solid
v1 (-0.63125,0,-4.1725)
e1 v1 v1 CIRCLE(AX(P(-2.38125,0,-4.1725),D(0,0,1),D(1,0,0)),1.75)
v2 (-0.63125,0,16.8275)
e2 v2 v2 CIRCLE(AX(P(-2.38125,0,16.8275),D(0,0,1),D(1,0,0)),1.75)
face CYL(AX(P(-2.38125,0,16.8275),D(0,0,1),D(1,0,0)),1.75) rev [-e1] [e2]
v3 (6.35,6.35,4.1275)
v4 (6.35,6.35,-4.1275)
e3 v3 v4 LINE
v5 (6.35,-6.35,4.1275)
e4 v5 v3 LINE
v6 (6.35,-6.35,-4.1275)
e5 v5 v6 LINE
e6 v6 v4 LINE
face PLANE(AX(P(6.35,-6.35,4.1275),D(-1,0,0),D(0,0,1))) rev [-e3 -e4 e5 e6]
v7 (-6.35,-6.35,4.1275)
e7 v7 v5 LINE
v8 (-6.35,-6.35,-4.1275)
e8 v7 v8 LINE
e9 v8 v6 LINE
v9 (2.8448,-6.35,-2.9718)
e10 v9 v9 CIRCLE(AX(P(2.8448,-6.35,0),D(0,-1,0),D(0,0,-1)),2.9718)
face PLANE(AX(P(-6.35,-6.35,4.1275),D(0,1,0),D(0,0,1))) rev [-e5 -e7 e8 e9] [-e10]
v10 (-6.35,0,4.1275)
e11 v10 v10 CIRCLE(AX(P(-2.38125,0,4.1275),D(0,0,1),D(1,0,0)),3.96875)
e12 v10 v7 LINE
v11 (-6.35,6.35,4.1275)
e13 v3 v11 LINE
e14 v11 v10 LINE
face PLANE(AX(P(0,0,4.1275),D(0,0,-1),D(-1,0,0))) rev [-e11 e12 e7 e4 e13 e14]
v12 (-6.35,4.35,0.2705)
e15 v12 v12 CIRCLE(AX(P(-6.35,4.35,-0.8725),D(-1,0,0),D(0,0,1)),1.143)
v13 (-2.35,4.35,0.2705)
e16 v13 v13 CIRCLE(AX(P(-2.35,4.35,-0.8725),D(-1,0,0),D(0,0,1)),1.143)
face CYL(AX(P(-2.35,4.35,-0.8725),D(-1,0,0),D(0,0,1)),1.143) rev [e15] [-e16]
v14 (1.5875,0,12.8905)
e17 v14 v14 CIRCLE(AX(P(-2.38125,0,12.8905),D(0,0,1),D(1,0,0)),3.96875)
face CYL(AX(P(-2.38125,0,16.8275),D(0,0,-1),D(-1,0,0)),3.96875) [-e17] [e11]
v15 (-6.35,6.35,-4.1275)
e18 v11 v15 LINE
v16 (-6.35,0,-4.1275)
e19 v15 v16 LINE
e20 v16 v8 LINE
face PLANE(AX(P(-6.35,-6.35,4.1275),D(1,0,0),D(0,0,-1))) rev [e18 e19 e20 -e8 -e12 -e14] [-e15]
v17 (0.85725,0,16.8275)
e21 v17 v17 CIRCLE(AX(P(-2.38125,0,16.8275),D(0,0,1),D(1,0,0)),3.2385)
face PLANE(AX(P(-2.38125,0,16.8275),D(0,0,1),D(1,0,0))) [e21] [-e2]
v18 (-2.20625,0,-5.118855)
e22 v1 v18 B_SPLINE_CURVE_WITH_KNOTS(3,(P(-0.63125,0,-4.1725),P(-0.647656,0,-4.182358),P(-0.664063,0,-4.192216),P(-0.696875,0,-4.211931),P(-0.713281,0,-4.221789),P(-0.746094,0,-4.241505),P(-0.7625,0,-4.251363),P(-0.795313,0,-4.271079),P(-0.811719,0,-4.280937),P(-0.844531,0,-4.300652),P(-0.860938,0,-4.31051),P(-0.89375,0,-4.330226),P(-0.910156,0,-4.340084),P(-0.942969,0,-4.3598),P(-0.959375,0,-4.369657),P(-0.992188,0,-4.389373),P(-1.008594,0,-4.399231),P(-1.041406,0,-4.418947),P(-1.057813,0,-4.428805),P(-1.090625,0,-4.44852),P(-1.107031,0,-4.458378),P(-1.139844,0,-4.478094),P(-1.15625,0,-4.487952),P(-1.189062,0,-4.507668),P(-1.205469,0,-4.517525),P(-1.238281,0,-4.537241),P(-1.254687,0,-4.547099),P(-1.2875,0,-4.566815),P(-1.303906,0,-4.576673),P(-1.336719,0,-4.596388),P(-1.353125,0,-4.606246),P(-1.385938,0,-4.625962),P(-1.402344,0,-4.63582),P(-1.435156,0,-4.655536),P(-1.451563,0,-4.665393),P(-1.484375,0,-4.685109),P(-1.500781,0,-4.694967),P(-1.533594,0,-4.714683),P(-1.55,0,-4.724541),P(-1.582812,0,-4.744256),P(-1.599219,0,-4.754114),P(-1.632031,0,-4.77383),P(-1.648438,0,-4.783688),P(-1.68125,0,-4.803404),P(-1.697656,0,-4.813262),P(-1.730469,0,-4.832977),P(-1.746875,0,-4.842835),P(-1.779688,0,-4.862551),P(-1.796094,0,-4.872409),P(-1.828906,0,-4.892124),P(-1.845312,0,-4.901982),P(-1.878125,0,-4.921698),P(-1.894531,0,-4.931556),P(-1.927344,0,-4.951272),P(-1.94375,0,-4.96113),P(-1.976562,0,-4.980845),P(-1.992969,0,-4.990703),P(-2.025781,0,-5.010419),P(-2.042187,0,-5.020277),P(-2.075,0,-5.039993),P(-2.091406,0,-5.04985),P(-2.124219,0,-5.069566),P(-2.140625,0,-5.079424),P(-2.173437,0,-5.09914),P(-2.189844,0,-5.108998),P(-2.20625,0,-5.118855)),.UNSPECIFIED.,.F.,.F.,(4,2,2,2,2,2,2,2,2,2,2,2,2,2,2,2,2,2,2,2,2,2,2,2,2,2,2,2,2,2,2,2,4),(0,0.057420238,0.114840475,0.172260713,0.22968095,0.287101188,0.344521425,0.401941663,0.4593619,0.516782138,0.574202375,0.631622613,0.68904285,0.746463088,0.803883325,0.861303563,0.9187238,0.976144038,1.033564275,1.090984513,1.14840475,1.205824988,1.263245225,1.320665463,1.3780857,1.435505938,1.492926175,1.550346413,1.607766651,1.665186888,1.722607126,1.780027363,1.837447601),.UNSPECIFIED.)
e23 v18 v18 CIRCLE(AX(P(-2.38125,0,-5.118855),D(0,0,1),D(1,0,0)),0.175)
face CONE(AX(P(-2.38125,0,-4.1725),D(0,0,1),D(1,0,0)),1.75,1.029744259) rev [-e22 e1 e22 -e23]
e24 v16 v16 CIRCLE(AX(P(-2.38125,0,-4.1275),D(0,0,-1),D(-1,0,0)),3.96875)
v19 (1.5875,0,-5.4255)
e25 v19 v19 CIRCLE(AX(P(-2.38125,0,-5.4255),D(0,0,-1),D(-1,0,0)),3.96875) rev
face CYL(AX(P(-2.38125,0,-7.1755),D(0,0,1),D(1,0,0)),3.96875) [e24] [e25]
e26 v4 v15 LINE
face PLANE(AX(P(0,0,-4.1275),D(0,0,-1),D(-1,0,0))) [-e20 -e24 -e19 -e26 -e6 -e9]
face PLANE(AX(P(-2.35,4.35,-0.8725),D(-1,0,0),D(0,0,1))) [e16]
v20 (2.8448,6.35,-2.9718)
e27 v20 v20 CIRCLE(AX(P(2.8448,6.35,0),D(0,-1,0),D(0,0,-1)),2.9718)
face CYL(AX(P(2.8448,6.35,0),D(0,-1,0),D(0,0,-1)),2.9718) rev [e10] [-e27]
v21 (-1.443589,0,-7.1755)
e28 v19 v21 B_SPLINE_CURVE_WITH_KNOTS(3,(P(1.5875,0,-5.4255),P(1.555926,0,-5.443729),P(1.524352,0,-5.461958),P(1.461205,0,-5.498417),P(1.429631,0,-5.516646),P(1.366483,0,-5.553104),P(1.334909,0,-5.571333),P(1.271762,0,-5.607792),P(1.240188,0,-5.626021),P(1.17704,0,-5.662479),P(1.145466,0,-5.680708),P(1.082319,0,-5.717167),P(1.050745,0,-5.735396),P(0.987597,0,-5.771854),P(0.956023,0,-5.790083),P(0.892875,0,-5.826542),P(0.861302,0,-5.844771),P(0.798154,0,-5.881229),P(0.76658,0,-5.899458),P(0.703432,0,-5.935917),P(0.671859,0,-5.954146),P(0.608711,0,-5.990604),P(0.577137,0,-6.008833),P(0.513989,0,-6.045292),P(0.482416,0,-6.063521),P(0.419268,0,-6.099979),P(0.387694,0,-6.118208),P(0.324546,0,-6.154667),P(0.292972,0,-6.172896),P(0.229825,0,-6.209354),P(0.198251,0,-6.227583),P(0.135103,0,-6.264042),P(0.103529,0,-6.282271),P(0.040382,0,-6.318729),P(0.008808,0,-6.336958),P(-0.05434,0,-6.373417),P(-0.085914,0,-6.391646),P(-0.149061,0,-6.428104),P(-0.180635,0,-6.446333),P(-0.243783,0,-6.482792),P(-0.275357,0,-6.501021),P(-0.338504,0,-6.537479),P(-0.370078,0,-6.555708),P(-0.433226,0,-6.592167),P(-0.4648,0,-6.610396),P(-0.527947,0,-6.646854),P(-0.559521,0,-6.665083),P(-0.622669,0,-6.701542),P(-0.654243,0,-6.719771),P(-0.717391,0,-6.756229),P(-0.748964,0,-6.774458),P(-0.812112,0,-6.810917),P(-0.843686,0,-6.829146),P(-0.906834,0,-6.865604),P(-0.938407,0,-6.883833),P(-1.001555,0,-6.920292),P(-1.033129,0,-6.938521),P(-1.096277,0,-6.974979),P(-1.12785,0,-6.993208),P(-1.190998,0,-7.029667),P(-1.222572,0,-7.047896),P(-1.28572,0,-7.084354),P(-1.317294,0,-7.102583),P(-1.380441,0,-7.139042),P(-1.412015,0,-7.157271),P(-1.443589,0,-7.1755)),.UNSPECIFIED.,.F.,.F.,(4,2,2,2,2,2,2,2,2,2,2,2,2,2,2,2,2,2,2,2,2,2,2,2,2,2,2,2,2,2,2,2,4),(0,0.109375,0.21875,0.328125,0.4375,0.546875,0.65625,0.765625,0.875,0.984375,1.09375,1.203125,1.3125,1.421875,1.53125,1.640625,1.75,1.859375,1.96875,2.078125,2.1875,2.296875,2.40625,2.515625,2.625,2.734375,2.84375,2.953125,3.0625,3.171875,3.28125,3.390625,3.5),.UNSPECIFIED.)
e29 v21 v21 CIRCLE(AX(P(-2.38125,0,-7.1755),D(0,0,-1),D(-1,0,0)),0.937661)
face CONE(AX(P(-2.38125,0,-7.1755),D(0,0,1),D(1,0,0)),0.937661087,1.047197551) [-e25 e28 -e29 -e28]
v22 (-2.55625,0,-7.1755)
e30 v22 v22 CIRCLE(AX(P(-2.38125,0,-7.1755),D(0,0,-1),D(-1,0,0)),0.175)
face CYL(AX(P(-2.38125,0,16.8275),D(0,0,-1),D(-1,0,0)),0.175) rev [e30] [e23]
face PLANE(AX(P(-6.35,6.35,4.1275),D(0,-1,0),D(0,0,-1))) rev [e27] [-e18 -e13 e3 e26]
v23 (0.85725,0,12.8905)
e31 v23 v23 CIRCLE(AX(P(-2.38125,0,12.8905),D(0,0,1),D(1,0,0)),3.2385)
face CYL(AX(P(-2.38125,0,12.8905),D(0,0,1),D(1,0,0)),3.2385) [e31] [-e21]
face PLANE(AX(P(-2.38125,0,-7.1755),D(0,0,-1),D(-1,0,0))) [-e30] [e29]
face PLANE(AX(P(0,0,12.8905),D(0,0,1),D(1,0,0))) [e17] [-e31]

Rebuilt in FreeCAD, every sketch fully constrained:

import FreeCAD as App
import Part
import Sketcher
Q = App.Units.Quantity


def edges_at(feature, points):
    """Names of the edges that pass closest to the given points."""
    edges = feature.Shape.Edges
    near = lambda p: min(range(len(edges)), key=lambda i: edges[i].distToShape(Part.Vertex(*p))[0])
    return sorted({f"Edge{near(p) + 1}" for p in points})


def add_polygon(sketch, points):
    """Adds a closed chain of lines whose ends are joined by coincident constraints."""
    first, n = sketch.GeometryCount, len(points)
    for a, b in zip(points, points[1:] + points[:1]):
        sketch.addGeometry(Part.LineSegment(App.Vector(*a, 0), App.Vector(*b, 0)), False)
    for i in range(n):
        sketch.addConstraint(Sketcher.Constraint("Coincident", first + i, 2, first + (i + 1) % n, 1))

doc = App.newDocument("Part")
params = doc.addObject("Spreadsheet::Sheet", "Params")
for row, (alias, value) in enumerate([
    ("sketch1_width", "0.5 in"),
    ("pad1_length", "0.325 in"),
    ("sketch2_diameter", "0.234 in"),
    ("sketch3_diameter", "0.3125 in"),
    ("pad2_length", "0.5 in"),
    ("sketch4_diameter", "0.255 in"),
    ("pocket2_length", "0.155 in"),
    ("sketch5_diameter", "0.3125 in"),
    ("pad3_length", "0.12 in"),
    ("chamfer_size", "1.75 mm"),
    ("chamfer_size2", "3.031089 mm"),
    ("hole_diameter", "3.5 mm"),
    ("hole_depth", "21 mm"),
    ("sketch8_diameter", "0.09 in"),
    ("pocket4_length", "4 mm"),
], start=1):
    params.set(f"A{row}", alias)
    params.set(f"B{row}", "=" + value)
    params.setAlias(f"B{row}", alias)

body = doc.addObject("PartDesign::Body", "Body")

sketch1 = doc.addObject("Sketcher::SketchObject", "Sketch")
body.addObject(sketch1)
sketch1.AttachmentSupport = (doc.XY_Plane, [""])
sketch1.MapMode = "FlatFace"
add_polygon(sketch1, [(-6, 6), (-6, -6), (6, -6), (6, 6)])
sketch1.addConstraint([
    Sketcher.Constraint("Vertical", 0),
    Sketcher.Constraint("Horizontal", 1),
    Sketcher.Constraint("Vertical", 2),
    Sketcher.Constraint("Horizontal", 3),
    Sketcher.Constraint("Symmetric", 0, 2, 2, 2, -1, 1),
    Sketcher.Constraint("Equal", 3, 0),
    Sketcher.Constraint("DistanceX", 1, 1, 1, 2, Q("0.5 in")),
])
sketch1.setExpression("Constraints[10]", "Params.sketch1_width")
pad1 = doc.addObject("PartDesign::Pad", "Pad")
body.addObject(pad1)
pad1.Profile = sketch1
pad1.setExpression("Length", "Params.pad1_length")
pad1.Midplane = True

sketch2 = doc.addObject("Sketcher::SketchObject", "Sketch001")
body.addObject(sketch2)
sketch2.AttachmentSupport = (doc.XZ_Plane, [""])
sketch2.MapMode = "FlatFace"
sketch2.AttachmentOffset = App.Placement(App.Vector(0, 0, 0.25 * 25.4), App.Rotation())
sketch2.addGeometry(Part.Circle(App.Vector(2.8, 0, 0), App.Vector(0, 0, 1), 3), False)
sketch2.addConstraint([
    Sketcher.Constraint("PointOnObject", 0, 3, -1),
    Sketcher.Constraint("Diameter", 0, Q("0.234 in")),
    Sketcher.Constraint("DistanceX", -1, 1, 0, 3, Q("0.112 in")),
])
sketch2.setExpression("Constraints[1]", "Params.sketch2_diameter")
pocket1 = doc.addObject("PartDesign::Pocket", "Pocket")
body.addObject(pocket1)
pocket1.Profile = sketch2
pocket1.Type = "ThroughAll"

sketch3 = doc.addObject("Sketcher::SketchObject", "Sketch002")
body.addObject(sketch3)
sketch3.AttachmentSupport = (doc.XY_Plane, [""])
sketch3.MapMode = "FlatFace"
sketch3.AttachmentOffset = App.Placement(App.Vector(0, 0, 0.1625 * 25.4), App.Rotation())
sketch3.addGeometry(Part.Circle(App.Vector(-2.4, 0, 0), App.Vector(0, 0, 1), 4), False)
sketch3.addConstraint([
    Sketcher.Constraint("PointOnObject", 0, 3, -1),
    Sketcher.Constraint("Diameter", 0, Q("0.3125 in")),
    Sketcher.Constraint("DistanceX", 0, 3, -1, 1, Q("0.09375 in")),
])
sketch3.setExpression("Constraints[1]", "Params.sketch3_diameter")
pad2 = doc.addObject("PartDesign::Pad", "Pad001")
body.addObject(pad2)
pad2.Profile = sketch3
pad2.setExpression("Length", "Params.pad2_length")

sketch4 = doc.addObject("Sketcher::SketchObject", "Sketch003")
body.addObject(sketch4)
sketch4.AttachmentSupport = (doc.XY_Plane, [""])
sketch4.MapMode = "FlatFace"
sketch4.AttachmentOffset = App.Placement(App.Vector(0, 0, 0.6625 * 25.4), App.Rotation())
add_polygon(sketch4, [(-10.1, 10.1), (-10.1, -10.1), (10.1, -10.1), (10.1, 10.1)])
sketch4.addGeometry(Part.Circle(App.Vector(-2.4, 0, 0), App.Vector(0, 0, 1), 3.2), False)
sketch4.addConstraint([
    Sketcher.Constraint("Vertical", 0),
    Sketcher.Constraint("Horizontal", 1),
    Sketcher.Constraint("Vertical", 2),
    Sketcher.Constraint("Horizontal", 3),
    Sketcher.Constraint("Symmetric", 0, 2, 2, 2, -1, 1),
    Sketcher.Constraint("PointOnObject", 4, 3, -1),
    Sketcher.Constraint("Equal", 3, 0),
    Sketcher.Constraint("Diameter", 4, Q("0.255 in")),
    Sketcher.Constraint("DistanceX", 4, 3, -1, 1, Q("0.09375 in")),
    Sketcher.Constraint("DistanceX", 1, 1, 1, 2, Q("20.22 mm")),
])
sketch4.setExpression("Constraints[11]", "Params.sketch4_diameter")
pocket2 = doc.addObject("PartDesign::Pocket", "Pocket001")
body.addObject(pocket2)
pocket2.Profile = sketch4
pocket2.setExpression("Length", "Params.pocket2_length")

sketch5 = doc.addObject("Sketcher::SketchObject", "Sketch004")
body.addObject(sketch5)
sketch5.AttachmentSupport = (doc.XY_Plane, [""])
sketch5.MapMode = "FlatFace"
sketch5.AttachmentOffset = App.Placement(App.Vector(0, 0, -0.2825 * 25.4), App.Rotation())
sketch5.addGeometry(Part.Circle(App.Vector(-2.4, 0, 0), App.Vector(0, 0, 1), 4), False)
sketch5.addConstraint([
    Sketcher.Constraint("PointOnObject", 0, 3, -1),
    Sketcher.Constraint("Diameter", 0, Q("0.3125 in")),
    Sketcher.Constraint("DistanceX", 0, 3, -1, 1, Q("0.09375 in")),
])
sketch5.setExpression("Constraints[1]", "Params.sketch5_diameter")
pad3 = doc.addObject("PartDesign::Pad", "Pad002")
body.addObject(pad3)
pad3.Profile = sketch5
pad3.setExpression("Length", "Params.pad3_length")
doc.recompute()

chamfer = doc.addObject("PartDesign::Chamfer", "Chamfer")
body.addObject(chamfer)
chamfer.Base = (pad3, edges_at(pad3, [(1.587, 0, -7.176)]))
chamfer.ChamferType = "Two distances"
chamfer.setExpression("Size", "Params.chamfer_size")
chamfer.setExpression("Size2", "Params.chamfer_size2")

sketch6 = doc.addObject("Sketcher::SketchObject", "Sketch005")
body.addObject(sketch6)
sketch6.AttachmentSupport = (doc.XY_Plane, [""])
sketch6.MapMode = "FlatFace"
sketch6.AttachmentOffset = App.Placement(App.Vector(0, 0, -0.2825 * 25.4), App.Rotation())
sketch6.addGeometry(Part.Circle(App.Vector(-2.38, 0, 0), App.Vector(0, 0, 1), 0.17), False)
sketch6.addConstraint([
    Sketcher.Constraint("PointOnObject", 0, 3, -1),
    Sketcher.Constraint("Diameter", 0, Q("0.35 mm")),
    Sketcher.Constraint("DistanceX", 0, 3, -1, 1, Q("0.09375 in")),
])
pocket3 = doc.addObject("PartDesign::Pocket", "Pocket002")
body.addObject(pocket3)
pocket3.Profile = sketch6
pocket3.Type = "ThroughAll"
pocket3.Reversed = True

sketch7 = doc.addObject("Sketcher::SketchObject", "Sketch006")
body.addObject(sketch7)
sketch7.AttachmentSupport = (doc.XY_Plane, [""])
sketch7.MapMode = "FlatFace"
sketch7.AttachmentOffset = App.Placement(App.Vector(0, 0, 0.6625 * 25.4), App.Rotation())
sketch7.addGeometry(Part.Circle(App.Vector(-2.4, 0, 0), App.Vector(0, 0, 1), 1.8), False)
sketch7.addConstraint([
    Sketcher.Constraint("PointOnObject", 0, 3, -1),
    Sketcher.Constraint("Diameter", 0, Q("3.5 mm")),
    Sketcher.Constraint("DistanceX", 0, 3, -1, 1, Q("0.09375 in")),
])
doc.recompute()
hole = doc.addObject("PartDesign::Hole", "Hole")
body.addObject(hole)
hole.Profile = sketch7
hole.ThreadType = "None"
hole.setExpression("Diameter", "Params.hole_diameter")
hole.DepthType = "Dimension"
hole.setExpression("Depth", "Params.hole_depth")
hole.DrillPoint = "Angled"
hole.DrillPointAngle = 118

sketch8 = doc.addObject("Sketcher::SketchObject", "Sketch007")
body.addObject(sketch8)
sketch8.AttachmentSupport = (doc.YZ_Plane, [""])
sketch8.MapMode = "FlatFace"
sketch8.AttachmentOffset = App.Placement(App.Vector(0, 0, -0.25 * 25.4), App.Rotation())
sketch8.addGeometry(Part.Circle(App.Vector(4.3, -0.9, 0), App.Vector(0, 0, 1), 1.1), False)
sketch8.addConstraint([
    Sketcher.Constraint("Diameter", 0, Q("0.09 in")),
    Sketcher.Constraint("DistanceX", -1, 1, 0, 3, Q("4.35 mm")),
    Sketcher.Constraint("DistanceY", 0, 3, -1, 1, Q("0.8725 mm")),
])
sketch8.setExpression("Constraints[0]", "Params.sketch8_diameter")
pocket4 = doc.addObject("PartDesign::Pocket", "Pocket003")
body.addObject(pocket4)
pocket4.Profile = sketch8
pocket4.setExpression("Length", "Params.pocket4_length")
pocket4.Reversed = True

doc.recompute()
